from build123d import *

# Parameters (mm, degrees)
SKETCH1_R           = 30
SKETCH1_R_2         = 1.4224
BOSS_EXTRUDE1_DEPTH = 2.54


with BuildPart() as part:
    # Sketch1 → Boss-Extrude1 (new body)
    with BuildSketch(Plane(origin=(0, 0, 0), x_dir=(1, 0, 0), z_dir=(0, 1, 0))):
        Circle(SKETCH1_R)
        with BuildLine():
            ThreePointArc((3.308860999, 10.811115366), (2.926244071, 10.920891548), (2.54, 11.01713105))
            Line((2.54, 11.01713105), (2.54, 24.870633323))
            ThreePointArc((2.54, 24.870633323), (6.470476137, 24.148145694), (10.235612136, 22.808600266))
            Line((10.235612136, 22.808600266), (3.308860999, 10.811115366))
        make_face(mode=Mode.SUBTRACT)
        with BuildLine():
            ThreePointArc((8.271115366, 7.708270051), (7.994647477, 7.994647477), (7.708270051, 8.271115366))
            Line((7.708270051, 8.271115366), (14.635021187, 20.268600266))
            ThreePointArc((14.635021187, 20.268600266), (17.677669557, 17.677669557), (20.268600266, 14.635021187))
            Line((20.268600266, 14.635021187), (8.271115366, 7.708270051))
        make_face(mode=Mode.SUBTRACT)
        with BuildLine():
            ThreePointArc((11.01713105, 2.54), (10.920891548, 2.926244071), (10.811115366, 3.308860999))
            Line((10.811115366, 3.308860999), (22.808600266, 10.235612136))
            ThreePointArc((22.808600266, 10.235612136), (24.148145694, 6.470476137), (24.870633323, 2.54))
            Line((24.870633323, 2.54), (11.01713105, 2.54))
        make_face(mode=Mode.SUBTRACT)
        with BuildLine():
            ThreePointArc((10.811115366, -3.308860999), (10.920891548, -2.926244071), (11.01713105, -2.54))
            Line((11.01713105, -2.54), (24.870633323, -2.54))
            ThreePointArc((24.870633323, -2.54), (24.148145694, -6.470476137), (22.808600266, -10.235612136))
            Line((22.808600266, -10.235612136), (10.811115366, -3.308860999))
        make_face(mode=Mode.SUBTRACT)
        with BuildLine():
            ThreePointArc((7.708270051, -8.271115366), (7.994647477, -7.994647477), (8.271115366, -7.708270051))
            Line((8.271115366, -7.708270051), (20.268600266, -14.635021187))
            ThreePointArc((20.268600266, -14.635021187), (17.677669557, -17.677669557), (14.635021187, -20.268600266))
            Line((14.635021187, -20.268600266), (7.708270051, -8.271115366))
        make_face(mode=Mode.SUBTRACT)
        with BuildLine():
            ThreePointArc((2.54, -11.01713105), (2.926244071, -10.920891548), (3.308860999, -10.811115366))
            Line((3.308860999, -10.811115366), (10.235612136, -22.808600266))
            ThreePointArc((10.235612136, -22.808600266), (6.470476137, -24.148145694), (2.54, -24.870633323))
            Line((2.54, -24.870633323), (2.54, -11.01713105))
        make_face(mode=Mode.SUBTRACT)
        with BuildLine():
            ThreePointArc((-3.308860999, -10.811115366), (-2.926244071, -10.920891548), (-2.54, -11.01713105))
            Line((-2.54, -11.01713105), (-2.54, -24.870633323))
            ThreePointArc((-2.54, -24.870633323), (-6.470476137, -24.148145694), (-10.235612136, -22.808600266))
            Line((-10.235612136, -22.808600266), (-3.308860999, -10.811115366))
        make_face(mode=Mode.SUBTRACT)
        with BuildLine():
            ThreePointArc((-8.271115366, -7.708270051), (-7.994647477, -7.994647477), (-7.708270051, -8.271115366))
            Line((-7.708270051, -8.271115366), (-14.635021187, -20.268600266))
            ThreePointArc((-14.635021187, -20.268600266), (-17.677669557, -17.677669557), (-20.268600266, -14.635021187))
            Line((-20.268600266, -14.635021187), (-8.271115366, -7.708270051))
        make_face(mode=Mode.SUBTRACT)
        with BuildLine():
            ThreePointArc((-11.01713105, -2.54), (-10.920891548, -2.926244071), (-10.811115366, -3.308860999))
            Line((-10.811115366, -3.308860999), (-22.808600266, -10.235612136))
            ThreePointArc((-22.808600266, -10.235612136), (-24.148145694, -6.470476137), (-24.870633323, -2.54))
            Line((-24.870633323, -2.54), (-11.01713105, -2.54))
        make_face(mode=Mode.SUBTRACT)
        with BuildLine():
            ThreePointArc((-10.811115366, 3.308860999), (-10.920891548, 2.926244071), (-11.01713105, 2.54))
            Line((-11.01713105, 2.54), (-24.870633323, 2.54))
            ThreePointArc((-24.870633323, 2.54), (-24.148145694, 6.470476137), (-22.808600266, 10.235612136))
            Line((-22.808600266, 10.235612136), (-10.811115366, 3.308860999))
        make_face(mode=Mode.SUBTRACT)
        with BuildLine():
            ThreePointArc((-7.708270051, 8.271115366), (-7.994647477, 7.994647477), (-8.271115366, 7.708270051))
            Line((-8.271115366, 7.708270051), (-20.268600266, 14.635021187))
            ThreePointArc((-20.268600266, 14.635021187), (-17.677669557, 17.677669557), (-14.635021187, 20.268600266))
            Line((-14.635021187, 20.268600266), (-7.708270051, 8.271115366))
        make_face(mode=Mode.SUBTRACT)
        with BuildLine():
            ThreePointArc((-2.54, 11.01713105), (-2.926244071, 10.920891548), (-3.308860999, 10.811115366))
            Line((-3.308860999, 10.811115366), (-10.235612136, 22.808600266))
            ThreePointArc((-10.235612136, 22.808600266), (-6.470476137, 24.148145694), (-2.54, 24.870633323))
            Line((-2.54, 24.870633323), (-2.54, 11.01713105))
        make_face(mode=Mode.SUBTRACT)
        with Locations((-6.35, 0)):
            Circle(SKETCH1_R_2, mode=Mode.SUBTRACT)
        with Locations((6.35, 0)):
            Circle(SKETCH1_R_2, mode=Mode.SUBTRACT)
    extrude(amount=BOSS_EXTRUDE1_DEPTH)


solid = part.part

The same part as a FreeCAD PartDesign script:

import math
import FreeCAD as App
import Part
import Sketcher

V = App.Vector
Q = App.Units.Quantity

doc = App.newDocument("Part")
params = doc.addObject("Spreadsheet::Sheet", "Params")
for row, (alias, value) in enumerate([
    ("sketch1_diameter", "60 mm"),
    ("sketch1_radius", "25 mm"),
    ("pad1_length", "2.54 mm"),
], start=1):
    params.set(f"A{row}", alias)
    params.set(f"B{row}", "=" + value)
    params.setAlias(f"B{row}", alias)

body = doc.addObject("PartDesign::Body", "Body")

sketch1 = body.newObject("Sketcher::SketchObject", "Sketch")
sketch1.AttachmentSupport = (doc.getObject("XZ_Plane"), [""])
sketch1.MapMode = "FlatFace"
sketch1.addGeometry([
    Part.Circle(V(0, 0, 0), V(0, 0, 1), 30),
    Part.LineSegment(V(-20.3, 14.6, 0), V(-8.3, 7.7, 0)),
    Part.ArcOfCircle(Part.Circle(V(0, 0, 0), V(0, 0, 1), 11.3), math.radians(132.98), math.radians(137.02)),
    Part.LineSegment(V(-7.7, 8.3, 0), V(-14.6, 20.3, 0)),
    Part.ArcOfCircle(Part.Circle(V(0, 0, 0), V(0, 0, 1), 25), math.radians(125.83), math.radians(144.17)),
    Part.LineSegment(V(-10.2, 22.8, 0), V(-3.3, 10.8, 0)),
    Part.ArcOfCircle(Part.Circle(V(0, 0, 0), V(0, 0, 1), 11.3), math.radians(102.98), math.radians(107.02)),
    Part.LineSegment(V(-2.5, 11, 0), V(-2.5, 24.9, 0)),
    Part.ArcOfCircle(Part.Circle(V(0, 0, 0), V(0, 0, 1), 25), math.radians(95.83), math.radians(114.17)),
    Part.LineSegment(V(-24.9, 2.5, 0), V(-11, 2.5, 0)),
    Part.ArcOfCircle(Part.Circle(V(0, 0, 0), V(0, 0, 1), 11.3), math.radians(162.98), math.radians(167.02)),
    Part.LineSegment(V(-10.8, 3.3, 0), V(-22.8, 10.2, 0)),
    Part.ArcOfCircle(Part.Circle(V(0, 0, 0), V(0, 0, 1), 25), math.radians(155.83), math.radians(174.17)),
    Part.LineSegment(V(2.5, 24.9, 0), V(2.5, 11, 0)),
    Part.ArcOfCircle(Part.Circle(V(0, 0, 0), V(0, 0, 1), 11.3), math.radians(72.98), math.radians(77.02)),
    Part.LineSegment(V(3.3, 10.8, 0), V(10.2, 22.8, 0)),
    Part.ArcOfCircle(Part.Circle(V(0, 0, 0), V(0, 0, 1), 25), math.radians(65.83), math.radians(84.17)),
    Part.LineSegment(V(14.6, 20.3, 0), V(7.7, 8.3, 0)),
    Part.ArcOfCircle(Part.Circle(V(0, 0, 0), V(0, 0, 1), 11.3), math.radians(42.98), math.radians(47.02)),
    Part.LineSegment(V(8.3, 7.7, 0), V(20.3, 14.6, 0)),
    Part.ArcOfCircle(Part.Circle(V(0, 0, 0), V(0, 0, 1), 25), math.radians(35.83), math.radians(54.17)),
    Part.LineSegment(V(22.8, 10.2, 0), V(10.8, 3.3, 0)),
    Part.ArcOfCircle(Part.Circle(V(0, 0, 0), V(0, 0, 1), 11.3), math.radians(12.98), math.radians(17.02)),
    Part.LineSegment(V(11, 2.5, 0), V(24.9, 2.5, 0)),
    Part.ArcOfCircle(Part.Circle(V(0, 0, 0), V(0, 0, 1), 25), math.radians(5.83), math.radians(24.17)),
    Part.LineSegment(V(-22.8, -10.2, 0), V(-10.8, -3.3, 0)),
    Part.ArcOfCircle(Part.Circle(V(0, 0, 0), V(0, 0, 1), 11.3), math.radians(-167.02), math.radians(-162.98)),
    Part.LineSegment(V(-11, -2.5, 0), V(-24.9, -2.5, 0)),
    Part.ArcOfCircle(Part.Circle(V(0, 0, 0), V(0, 0, 1), 25), math.radians(-174.17), math.radians(-155.83)),
    Part.Circle(V(-6.3, 0, 0), V(0, 0, 1), 1.4),
    Part.LineSegment(V(-14.6, -20.3, 0), V(-7.7, -8.3, 0)),
    Part.ArcOfCircle(Part.Circle(V(0, 0, 0), V(0, 0, 1), 11.3), math.radians(-137.02), math.radians(-132.98)),
    Part.LineSegment(V(-8.3, -7.7, 0), V(-20.3, -14.6, 0)),
    Part.ArcOfCircle(Part.Circle(V(0, 0, 0), V(0, 0, 1), 25), math.radians(-144.17), math.radians(-125.83)),
    Part.LineSegment(V(-2.5, -24.9, 0), V(-2.5, -11, 0)),
    Part.ArcOfCircle(Part.Circle(V(0, 0, 0), V(0, 0, 1), 11.3), math.radians(-107.02), math.radians(-102.98)),
    Part.LineSegment(V(-3.3, -10.8, 0), V(-10.2, -22.8, 0)),
    Part.ArcOfCircle(Part.Circle(V(0, 0, 0), V(0, 0, 1), 25), math.radians(-114.17), math.radians(-95.83)),
    Part.Circle(V(6.3, 0, 0), V(0, 0, 1), 1.4),
    Part.LineSegment(V(24.9, -2.5, 0), V(11, -2.5, 0)),
    Part.ArcOfCircle(Part.Circle(V(0, 0, 0), V(0, 0, 1), 11.3), math.radians(-17.02), math.radians(-12.98)),
    Part.LineSegment(V(10.8, -3.3, 0), V(22.8, -10.2, 0)),
    Part.ArcOfCircle(Part.Circle(V(0, 0, 0), V(0, 0, 1), 25), math.radians(-24.17), math.radians(-5.83)),
    Part.LineSegment(V(10.2, -22.8, 0), V(3.3, -10.8, 0)),
    Part.ArcOfCircle(Part.Circle(V(0, 0, 0), V(0, 0, 1), 11.3), math.radians(-77.02), math.radians(-72.98)),
    Part.LineSegment(V(2.5, -11, 0), V(2.5, -24.9, 0)),
    Part.ArcOfCircle(Part.Circle(V(0, 0, 0), V(0, 0, 1), 25), math.radians(-84.17), math.radians(-65.83)),
    Part.LineSegment(V(20.3, -14.6, 0), V(8.3, -7.7, 0)),
    Part.ArcOfCircle(Part.Circle(V(0, 0, 0), V(0, 0, 1), 11.3), math.radians(-47.02), math.radians(-42.98)),
    Part.LineSegment(V(7.7, -8.3, 0), V(14.6, -20.3, 0)),
    Part.ArcOfCircle(Part.Circle(V(0, 0, 0), V(0, 0, 1), 25), math.radians(-54.17), math.radians(-35.83)),
], False)
sketch1.addConstraint([
    Sketcher.Constraint("Coincident", 1, 2, 2, 2),
    Sketcher.Constraint("Coincident", 2, 1, 3, 1),
    Sketcher.Constraint("Coincident", 3, 2, 4, 1),
    Sketcher.Constraint("Coincident", 4, 2, 1, 1),
    Sketcher.Constraint("Coincident", 5, 2, 6, 2),
    Sketcher.Constraint("Coincident", 6, 1, 7, 1),
    Sketcher.Constraint("Coincident", 7, 2, 8, 1),
    Sketcher.Constraint("Coincident", 8, 2, 5, 1),
    Sketcher.Constraint("Coincident", 9, 2, 10, 2),
    Sketcher.Constraint("Coincident", 10, 1, 11, 1),
    Sketcher.Constraint("Coincident", 11, 2, 12, 1),
    Sketcher.Constraint("Coincident", 12, 2, 9, 1),
    Sketcher.Constraint("Coincident", 13, 2, 14, 2),
    Sketcher.Constraint("Coincident", 14, 1, 15, 1),
    Sketcher.Constraint("Coincident", 15, 2, 16, 1),
    Sketcher.Constraint("Coincident", 16, 2, 13, 1),
    Sketcher.Constraint("Coincident", 17, 2, 18, 2),
    Sketcher.Constraint("Coincident", 18, 1, 19, 1),
    Sketcher.Constraint("Coincident", 19, 2, 20, 1),
    Sketcher.Constraint("Coincident", 20, 2, 17, 1),
    Sketcher.Constraint("Coincident", 21, 2, 22, 2),
    Sketcher.Constraint("Coincident", 22, 1, 23, 1),
    Sketcher.Constraint("Coincident", 23, 2, 24, 1),
    Sketcher.Constraint("Coincident", 24, 2, 21, 1),
    Sketcher.Constraint("Coincident", 25, 2, 26, 2),
    Sketcher.Constraint("Coincident", 26, 1, 27, 1),
    Sketcher.Constraint("Coincident", 27, 2, 28, 1),
    Sketcher.Constraint("Coincident", 28, 2, 25, 1),
    Sketcher.Constraint("Coincident", 30, 2, 31, 2),
    Sketcher.Constraint("Coincident", 31, 1, 32, 1),
    Sketcher.Constraint("Coincident", 32, 2, 33, 1),
    Sketcher.Constraint("Coincident", 33, 2, 30, 1),
    Sketcher.Constraint("Coincident", 34, 2, 35, 2),
    Sketcher.Constraint("Coincident", 35, 1, 36, 1),
    Sketcher.Constraint("Coincident", 36, 2, 37, 1),
    Sketcher.Constraint("Coincident", 37, 2, 34, 1),
    Sketcher.Constraint("Coincident", 39, 2, 40, 2),
    Sketcher.Constraint("Coincident", 40, 1, 41, 1),
    Sketcher.Constraint("Coincident", 41, 2, 42, 1),
    Sketcher.Constraint("Coincident", 42, 2, 39, 1),
    Sketcher.Constraint("Coincident", 43, 2, 44, 2),
    Sketcher.Constraint("Coincident", 44, 1, 45, 1),
    Sketcher.Constraint("Coincident", 45, 2, 46, 1),
    Sketcher.Constraint("Coincident", 46, 2, 43, 1),
    Sketcher.Constraint("Coincident", 47, 2, 48, 2),
    Sketcher.Constraint("Coincident", 48, 1, 49, 1),
    Sketcher.Constraint("Coincident", 49, 2, 50, 1),
    Sketcher.Constraint("Coincident", 50, 2, 47, 1),
    Sketcher.Constraint("Vertical", 7),
    Sketcher.Constraint("Horizontal", 9),
    Sketcher.Constraint("Vertical", 13),
    Sketcher.Constraint("Horizontal", 23),
    Sketcher.Constraint("Horizontal", 27),
    Sketcher.Constraint("Vertical", 34),
    Sketcher.Constraint("Horizontal", 39),
    Sketcher.Constraint("Vertical", 45),
    Sketcher.Constraint("Coincident", 0, 3, -1, 1),
    Sketcher.Constraint("Coincident", 2, 3, -1, 1),
    Sketcher.Constraint("Coincident", 4, 3, -1, 1),
    Sketcher.Constraint("Coincident", 6, 3, -1, 1),
    Sketcher.Constraint("Coincident", 8, 3, -1, 1),
    Sketcher.Constraint("Coincident", 10, 3, -1, 1),
    Sketcher.Constraint("Coincident", 12, 3, -1, 1),
    Sketcher.Constraint("Coincident", 14, 3, -1, 1),
    Sketcher.Constraint("Coincident", 16, 3, -1, 1),
    Sketcher.Constraint("Coincident", 18, 3, -1, 1),
    Sketcher.Constraint("Coincident", 20, 3, -1, 1),
    Sketcher.Constraint("Coincident", 22, 3, -1, 1),
    Sketcher.Constraint("Coincident", 24, 3, -1, 1),
    Sketcher.Constraint("Coincident", 26, 3, -1, 1),
    Sketcher.Constraint("Coincident", 28, 3, -1, 1),
    Sketcher.Constraint("Coincident", 31, 3, -1, 1),
    Sketcher.Constraint("Coincident", 33, 3, -1, 1),
    Sketcher.Constraint("Coincident", 35, 3, -1, 1),
    Sketcher.Constraint("Coincident", 37, 3, -1, 1),
    Sketcher.Constraint("Coincident", 40, 3, -1, 1),
    Sketcher.Constraint("Coincident", 42, 3, -1, 1),
    Sketcher.Constraint("Coincident", 44, 3, -1, 1),
    Sketcher.Constraint("Coincident", 46, 3, -1, 1),
    Sketcher.Constraint("Coincident", 48, 3, -1, 1),
    Sketcher.Constraint("Coincident", 50, 3, -1, 1),
    Sketcher.Constraint("Equal", 2, 6),
    Sketcher.Constraint("Equal", 4, 8),
    Sketcher.Constraint("Equal", 6, 10),
    Sketcher.Constraint("Equal", 8, 12),
    Sketcher.Constraint("Equal", 10, 14),
    Sketcher.Constraint("Equal", 12, 16),
    Sketcher.Constraint("Equal", 14, 18),
    Sketcher.Constraint("Equal", 16, 20),
    Sketcher.Constraint("Equal", 18, 22),
    Sketcher.Constraint("Equal", 20, 24),
    Sketcher.Constraint("Equal", 22, 26),
    Sketcher.Constraint("Equal", 24, 28),
    Sketcher.Constraint("Equal", 26, 31),
    Sketcher.Constraint("Equal", 28, 33),
    Sketcher.Constraint("Equal", 31, 35),
    Sketcher.Constraint("Equal", 33, 37),
    Sketcher.Constraint("Equal", 29, 38),
    Sketcher.Constraint("Equal", 35, 40),
    Sketcher.Constraint("Equal", 37, 42),
    Sketcher.Constraint("Equal", 40, 44),
    Sketcher.Constraint("Equal", 42, 46),
    Sketcher.Constraint("Equal", 44, 48),
    Sketcher.Constraint("Equal", 46, 50),
    Sketcher.Constraint("Symmetric", 29, 3, 38, 3, -1, 1),
    Sketcher.Constraint("PointOnObject", 29, 3, -1),
    Sketcher.Constraint("Parallel", 3, 5),
    Sketcher.Constraint("Parallel", 1, 11),
    Sketcher.Constraint("Perpendicular", 11, 15),
    Sketcher.Constraint("Parallel", 15, 17),
    Sketcher.Constraint("Perpendicular", 5, 19),
    Sketcher.Constraint("Parallel", 19, 21),
    Sketcher.Constraint("Parallel", 21, 25),
    Sketcher.Constraint("Parallel", 17, 30),
    Sketcher.Constraint("Parallel", 25, 32),
    Sketcher.Constraint("Parallel", 30, 36),
    Sketcher.Constraint("Perpendicular", 36, 41),
    Sketcher.Constraint("Perpendicular", 32, 43),
    Sketcher.Constraint("Parallel", 41, 47),
    Sketcher.Constraint("Parallel", 43, 49),
    Sketcher.Constraint("Horizontal", 6, 1, 13, 2),
    Sketcher.Constraint("Horizontal", 5, 2, 14, 1),
    Sketcher.Constraint("Horizontal", 8, 2, 15, 2),
    Sketcher.Constraint("Horizontal", 2, 1, 17, 2),
    Sketcher.Constraint("Horizontal", 1, 2, 18, 1),
    Sketcher.Constraint("Horizontal", 10, 1, 21, 2),
    Sketcher.Constraint("Horizontal", 12, 2, 22, 1),
    Sketcher.Constraint("Horizontal", 27, 2, 39, 2),
    Sketcher.Constraint("Horizontal", 25, 2, 40, 1),
    Sketcher.Constraint("Horizontal", 35, 1, 43, 2),
    Sketcher.Constraint("Horizontal", 34, 2, 44, 1),
    Sketcher.Constraint("Horizontal", 31, 1, 47, 2),
    Sketcher.Constraint("Horizontal", 30, 2, 48, 1),
    Sketcher.Constraint("Vertical", 10, 1, 25, 2),
    Sketcher.Constraint("Vertical", 9, 2, 26, 1),
    Sketcher.Constraint("Vertical", 2, 1, 30, 2),
    Sketcher.Constraint("Vertical", 1, 2, 31, 1),
    Sketcher.Constraint("Vertical", 7, 2, 34, 2),
    Sketcher.Constraint("Vertical", 5, 2, 35, 1),
    Sketcher.Constraint("Equal", 39, 7),
    Sketcher.Constraint("Equal", 1, 3),
    Sketcher.Constraint("Equal", 3, 5),
    Sketcher.Constraint("Equal", 5, 11),
    Sketcher.Constraint("Diameter", 0, 60.0),
    Sketcher.Constraint("Radius", 4, 25.0),
    Sketcher.Constraint("Angle", 1, Q("-30 deg")),
    Sketcher.Constraint("Diameter", 29, 2.8448),
    Sketcher.Constraint("DistanceX", 29, 3, -1, 1, 6.35),
    Sketcher.Constraint("DistanceX", 6, 1, -1, 1, 2.54),
    Sketcher.Constraint("Radius", 2, 11.30614),
    Sketcher.Constraint("DistanceY", -1, 1, 3, 2, 20.2686),
])
sketch1.setExpression("Constraints[143]", "Params.sketch1_diameter")
sketch1.setExpression("Constraints[144]", "Params.sketch1_radius")
pad1 = body.newObject("PartDesign::Pad", "Pad")
pad1.Profile = sketch1
pad1.setExpression("Length", "Params.pad1_length")
pad1.Reversed = True

doc.recompute()
